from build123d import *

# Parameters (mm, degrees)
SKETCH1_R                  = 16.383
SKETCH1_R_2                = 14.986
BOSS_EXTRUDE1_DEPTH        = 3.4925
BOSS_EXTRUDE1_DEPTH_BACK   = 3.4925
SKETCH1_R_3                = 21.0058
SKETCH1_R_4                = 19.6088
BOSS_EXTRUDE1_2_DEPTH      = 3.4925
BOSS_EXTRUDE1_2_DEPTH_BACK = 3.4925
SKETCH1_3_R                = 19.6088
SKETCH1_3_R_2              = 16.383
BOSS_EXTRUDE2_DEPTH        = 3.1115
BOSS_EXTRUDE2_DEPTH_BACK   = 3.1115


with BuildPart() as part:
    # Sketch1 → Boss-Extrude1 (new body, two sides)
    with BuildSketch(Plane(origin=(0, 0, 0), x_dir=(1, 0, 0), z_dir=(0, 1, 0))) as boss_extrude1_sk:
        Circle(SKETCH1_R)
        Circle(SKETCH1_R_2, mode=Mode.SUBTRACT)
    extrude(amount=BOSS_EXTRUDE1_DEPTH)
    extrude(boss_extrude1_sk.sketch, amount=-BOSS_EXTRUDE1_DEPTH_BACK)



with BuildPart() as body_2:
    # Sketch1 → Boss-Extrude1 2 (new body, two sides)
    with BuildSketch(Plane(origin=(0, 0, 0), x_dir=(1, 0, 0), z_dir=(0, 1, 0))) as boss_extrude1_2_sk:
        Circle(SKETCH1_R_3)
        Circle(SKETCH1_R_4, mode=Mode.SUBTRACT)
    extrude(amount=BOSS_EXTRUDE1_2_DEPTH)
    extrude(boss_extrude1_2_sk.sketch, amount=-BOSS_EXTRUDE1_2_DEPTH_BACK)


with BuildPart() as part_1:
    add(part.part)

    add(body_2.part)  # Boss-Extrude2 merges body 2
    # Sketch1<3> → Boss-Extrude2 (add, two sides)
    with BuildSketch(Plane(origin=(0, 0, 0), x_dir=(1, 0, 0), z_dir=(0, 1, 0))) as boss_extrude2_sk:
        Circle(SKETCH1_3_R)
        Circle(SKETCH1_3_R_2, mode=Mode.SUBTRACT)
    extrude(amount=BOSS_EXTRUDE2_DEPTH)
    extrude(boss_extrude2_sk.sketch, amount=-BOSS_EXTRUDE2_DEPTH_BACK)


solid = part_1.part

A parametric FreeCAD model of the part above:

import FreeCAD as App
import Part
import Sketcher

V = App.Vector
Q = App.Units.Quantity

doc = App.newDocument("Part")
body = doc.addObject("PartDesign::Body", "Body")

# Sketch on XZ plane
sketch1 = body.newObject("Sketcher::SketchObject", "Sketch")
sketch1.AttachmentSupport = (doc.getObject("XZ_Plane"), [""])
sketch1.MapMode = "FlatFace"
sketch1.addGeometry([
    Part.Circle(V(0, 0, 0), V(0, 0, 1), 16),
    Part.Circle(V(0, 0, 0), V(0, 0, 1), 15),
], False)
sketch1.addConstraint([
    Sketcher.Constraint("Coincident", 0, 3, -1, 1),
    Sketcher.Constraint("Coincident", 1, 3, -1, 1),
    Sketcher.Constraint("Diameter", 0, Q("1.29 in")),
    Sketcher.Constraint("Diameter", 1, Q("1.18 in")),
])
pad1 = body.newObject("PartDesign::Pad", "Pad")
pad1.Profile = sketch1
pad1.Type = "TwoLengths"
pad1.Length = Q("0.1375 in")
pad1.Length2 = Q("0.1375 in")
pad1.Reversed = True
body2 = doc.addObject("PartDesign::Body", "Body001")

# Sketch on XZ plane
sketch2 = body2.newObject("Sketcher::SketchObject", "Sketch001")
sketch2.AttachmentSupport = (doc.getObject("XZ_Plane001"), [""])
sketch2.MapMode = "FlatFace"
sketch2.addGeometry([
    Part.Circle(V(0, 0, 0), V(0, 0, 1), 21),
    Part.Circle(V(0, 0, 0), V(0, 0, 1), 20),
], False)
sketch2.addConstraint([
    Sketcher.Constraint("Coincident", 0, 3, -1, 1),
    Sketcher.Constraint("Coincident", 1, 3, -1, 1),
    Sketcher.Constraint("Diameter", 0, Q("1.654 in")),
    Sketcher.Constraint("Diameter", 1, Q("1.544 in")),
])
pad2 = body2.newObject("PartDesign::Pad", "Pad001")
pad2.Profile = sketch2
pad2.Type = "TwoLengths"
pad2.Length = Q("0.1375 in")
pad2.Length2 = Q("0.1375 in")
pad2.Reversed = True
body.AllowCompound = True
doc.recompute()

boolean = body.newObject("PartDesign::Boolean", "Boolean")
boolean.Type = "Fuse"
boolean.addObjects([body2])

# Sketch on XZ plane
sketch3 = body.newObject("Sketcher::SketchObject", "Sketch002")
sketch3.AttachmentSupport = (doc.getObject("XZ_Plane"), [""])
sketch3.MapMode = "FlatFace"
sketch3.addGeometry([
    Part.Circle(V(0, 0, 0), V(0, 0, 1), 20),
    Part.Circle(V(0, 0, 0), V(0, 0, 1), 16),
], False)
sketch3.addConstraint([
    Sketcher.Constraint("Coincident", 0, 3, -1, 1),
    Sketcher.Constraint("Coincident", 1, 3, -1, 1),
    Sketcher.Constraint("Diameter", 1, Q("1.29 in")),
    Sketcher.Constraint("Diameter", 0, Q("1.544 in")),
])
pad3 = body.newObject("PartDesign::Pad", "Pad002")
pad3.Profile = sketch3
pad3.Type = "TwoLengths"
pad3.Length = Q("0.1225 in")
pad3.Length2 = Q("0.1225 in")
pad3.Reversed = True

doc.recompute()
